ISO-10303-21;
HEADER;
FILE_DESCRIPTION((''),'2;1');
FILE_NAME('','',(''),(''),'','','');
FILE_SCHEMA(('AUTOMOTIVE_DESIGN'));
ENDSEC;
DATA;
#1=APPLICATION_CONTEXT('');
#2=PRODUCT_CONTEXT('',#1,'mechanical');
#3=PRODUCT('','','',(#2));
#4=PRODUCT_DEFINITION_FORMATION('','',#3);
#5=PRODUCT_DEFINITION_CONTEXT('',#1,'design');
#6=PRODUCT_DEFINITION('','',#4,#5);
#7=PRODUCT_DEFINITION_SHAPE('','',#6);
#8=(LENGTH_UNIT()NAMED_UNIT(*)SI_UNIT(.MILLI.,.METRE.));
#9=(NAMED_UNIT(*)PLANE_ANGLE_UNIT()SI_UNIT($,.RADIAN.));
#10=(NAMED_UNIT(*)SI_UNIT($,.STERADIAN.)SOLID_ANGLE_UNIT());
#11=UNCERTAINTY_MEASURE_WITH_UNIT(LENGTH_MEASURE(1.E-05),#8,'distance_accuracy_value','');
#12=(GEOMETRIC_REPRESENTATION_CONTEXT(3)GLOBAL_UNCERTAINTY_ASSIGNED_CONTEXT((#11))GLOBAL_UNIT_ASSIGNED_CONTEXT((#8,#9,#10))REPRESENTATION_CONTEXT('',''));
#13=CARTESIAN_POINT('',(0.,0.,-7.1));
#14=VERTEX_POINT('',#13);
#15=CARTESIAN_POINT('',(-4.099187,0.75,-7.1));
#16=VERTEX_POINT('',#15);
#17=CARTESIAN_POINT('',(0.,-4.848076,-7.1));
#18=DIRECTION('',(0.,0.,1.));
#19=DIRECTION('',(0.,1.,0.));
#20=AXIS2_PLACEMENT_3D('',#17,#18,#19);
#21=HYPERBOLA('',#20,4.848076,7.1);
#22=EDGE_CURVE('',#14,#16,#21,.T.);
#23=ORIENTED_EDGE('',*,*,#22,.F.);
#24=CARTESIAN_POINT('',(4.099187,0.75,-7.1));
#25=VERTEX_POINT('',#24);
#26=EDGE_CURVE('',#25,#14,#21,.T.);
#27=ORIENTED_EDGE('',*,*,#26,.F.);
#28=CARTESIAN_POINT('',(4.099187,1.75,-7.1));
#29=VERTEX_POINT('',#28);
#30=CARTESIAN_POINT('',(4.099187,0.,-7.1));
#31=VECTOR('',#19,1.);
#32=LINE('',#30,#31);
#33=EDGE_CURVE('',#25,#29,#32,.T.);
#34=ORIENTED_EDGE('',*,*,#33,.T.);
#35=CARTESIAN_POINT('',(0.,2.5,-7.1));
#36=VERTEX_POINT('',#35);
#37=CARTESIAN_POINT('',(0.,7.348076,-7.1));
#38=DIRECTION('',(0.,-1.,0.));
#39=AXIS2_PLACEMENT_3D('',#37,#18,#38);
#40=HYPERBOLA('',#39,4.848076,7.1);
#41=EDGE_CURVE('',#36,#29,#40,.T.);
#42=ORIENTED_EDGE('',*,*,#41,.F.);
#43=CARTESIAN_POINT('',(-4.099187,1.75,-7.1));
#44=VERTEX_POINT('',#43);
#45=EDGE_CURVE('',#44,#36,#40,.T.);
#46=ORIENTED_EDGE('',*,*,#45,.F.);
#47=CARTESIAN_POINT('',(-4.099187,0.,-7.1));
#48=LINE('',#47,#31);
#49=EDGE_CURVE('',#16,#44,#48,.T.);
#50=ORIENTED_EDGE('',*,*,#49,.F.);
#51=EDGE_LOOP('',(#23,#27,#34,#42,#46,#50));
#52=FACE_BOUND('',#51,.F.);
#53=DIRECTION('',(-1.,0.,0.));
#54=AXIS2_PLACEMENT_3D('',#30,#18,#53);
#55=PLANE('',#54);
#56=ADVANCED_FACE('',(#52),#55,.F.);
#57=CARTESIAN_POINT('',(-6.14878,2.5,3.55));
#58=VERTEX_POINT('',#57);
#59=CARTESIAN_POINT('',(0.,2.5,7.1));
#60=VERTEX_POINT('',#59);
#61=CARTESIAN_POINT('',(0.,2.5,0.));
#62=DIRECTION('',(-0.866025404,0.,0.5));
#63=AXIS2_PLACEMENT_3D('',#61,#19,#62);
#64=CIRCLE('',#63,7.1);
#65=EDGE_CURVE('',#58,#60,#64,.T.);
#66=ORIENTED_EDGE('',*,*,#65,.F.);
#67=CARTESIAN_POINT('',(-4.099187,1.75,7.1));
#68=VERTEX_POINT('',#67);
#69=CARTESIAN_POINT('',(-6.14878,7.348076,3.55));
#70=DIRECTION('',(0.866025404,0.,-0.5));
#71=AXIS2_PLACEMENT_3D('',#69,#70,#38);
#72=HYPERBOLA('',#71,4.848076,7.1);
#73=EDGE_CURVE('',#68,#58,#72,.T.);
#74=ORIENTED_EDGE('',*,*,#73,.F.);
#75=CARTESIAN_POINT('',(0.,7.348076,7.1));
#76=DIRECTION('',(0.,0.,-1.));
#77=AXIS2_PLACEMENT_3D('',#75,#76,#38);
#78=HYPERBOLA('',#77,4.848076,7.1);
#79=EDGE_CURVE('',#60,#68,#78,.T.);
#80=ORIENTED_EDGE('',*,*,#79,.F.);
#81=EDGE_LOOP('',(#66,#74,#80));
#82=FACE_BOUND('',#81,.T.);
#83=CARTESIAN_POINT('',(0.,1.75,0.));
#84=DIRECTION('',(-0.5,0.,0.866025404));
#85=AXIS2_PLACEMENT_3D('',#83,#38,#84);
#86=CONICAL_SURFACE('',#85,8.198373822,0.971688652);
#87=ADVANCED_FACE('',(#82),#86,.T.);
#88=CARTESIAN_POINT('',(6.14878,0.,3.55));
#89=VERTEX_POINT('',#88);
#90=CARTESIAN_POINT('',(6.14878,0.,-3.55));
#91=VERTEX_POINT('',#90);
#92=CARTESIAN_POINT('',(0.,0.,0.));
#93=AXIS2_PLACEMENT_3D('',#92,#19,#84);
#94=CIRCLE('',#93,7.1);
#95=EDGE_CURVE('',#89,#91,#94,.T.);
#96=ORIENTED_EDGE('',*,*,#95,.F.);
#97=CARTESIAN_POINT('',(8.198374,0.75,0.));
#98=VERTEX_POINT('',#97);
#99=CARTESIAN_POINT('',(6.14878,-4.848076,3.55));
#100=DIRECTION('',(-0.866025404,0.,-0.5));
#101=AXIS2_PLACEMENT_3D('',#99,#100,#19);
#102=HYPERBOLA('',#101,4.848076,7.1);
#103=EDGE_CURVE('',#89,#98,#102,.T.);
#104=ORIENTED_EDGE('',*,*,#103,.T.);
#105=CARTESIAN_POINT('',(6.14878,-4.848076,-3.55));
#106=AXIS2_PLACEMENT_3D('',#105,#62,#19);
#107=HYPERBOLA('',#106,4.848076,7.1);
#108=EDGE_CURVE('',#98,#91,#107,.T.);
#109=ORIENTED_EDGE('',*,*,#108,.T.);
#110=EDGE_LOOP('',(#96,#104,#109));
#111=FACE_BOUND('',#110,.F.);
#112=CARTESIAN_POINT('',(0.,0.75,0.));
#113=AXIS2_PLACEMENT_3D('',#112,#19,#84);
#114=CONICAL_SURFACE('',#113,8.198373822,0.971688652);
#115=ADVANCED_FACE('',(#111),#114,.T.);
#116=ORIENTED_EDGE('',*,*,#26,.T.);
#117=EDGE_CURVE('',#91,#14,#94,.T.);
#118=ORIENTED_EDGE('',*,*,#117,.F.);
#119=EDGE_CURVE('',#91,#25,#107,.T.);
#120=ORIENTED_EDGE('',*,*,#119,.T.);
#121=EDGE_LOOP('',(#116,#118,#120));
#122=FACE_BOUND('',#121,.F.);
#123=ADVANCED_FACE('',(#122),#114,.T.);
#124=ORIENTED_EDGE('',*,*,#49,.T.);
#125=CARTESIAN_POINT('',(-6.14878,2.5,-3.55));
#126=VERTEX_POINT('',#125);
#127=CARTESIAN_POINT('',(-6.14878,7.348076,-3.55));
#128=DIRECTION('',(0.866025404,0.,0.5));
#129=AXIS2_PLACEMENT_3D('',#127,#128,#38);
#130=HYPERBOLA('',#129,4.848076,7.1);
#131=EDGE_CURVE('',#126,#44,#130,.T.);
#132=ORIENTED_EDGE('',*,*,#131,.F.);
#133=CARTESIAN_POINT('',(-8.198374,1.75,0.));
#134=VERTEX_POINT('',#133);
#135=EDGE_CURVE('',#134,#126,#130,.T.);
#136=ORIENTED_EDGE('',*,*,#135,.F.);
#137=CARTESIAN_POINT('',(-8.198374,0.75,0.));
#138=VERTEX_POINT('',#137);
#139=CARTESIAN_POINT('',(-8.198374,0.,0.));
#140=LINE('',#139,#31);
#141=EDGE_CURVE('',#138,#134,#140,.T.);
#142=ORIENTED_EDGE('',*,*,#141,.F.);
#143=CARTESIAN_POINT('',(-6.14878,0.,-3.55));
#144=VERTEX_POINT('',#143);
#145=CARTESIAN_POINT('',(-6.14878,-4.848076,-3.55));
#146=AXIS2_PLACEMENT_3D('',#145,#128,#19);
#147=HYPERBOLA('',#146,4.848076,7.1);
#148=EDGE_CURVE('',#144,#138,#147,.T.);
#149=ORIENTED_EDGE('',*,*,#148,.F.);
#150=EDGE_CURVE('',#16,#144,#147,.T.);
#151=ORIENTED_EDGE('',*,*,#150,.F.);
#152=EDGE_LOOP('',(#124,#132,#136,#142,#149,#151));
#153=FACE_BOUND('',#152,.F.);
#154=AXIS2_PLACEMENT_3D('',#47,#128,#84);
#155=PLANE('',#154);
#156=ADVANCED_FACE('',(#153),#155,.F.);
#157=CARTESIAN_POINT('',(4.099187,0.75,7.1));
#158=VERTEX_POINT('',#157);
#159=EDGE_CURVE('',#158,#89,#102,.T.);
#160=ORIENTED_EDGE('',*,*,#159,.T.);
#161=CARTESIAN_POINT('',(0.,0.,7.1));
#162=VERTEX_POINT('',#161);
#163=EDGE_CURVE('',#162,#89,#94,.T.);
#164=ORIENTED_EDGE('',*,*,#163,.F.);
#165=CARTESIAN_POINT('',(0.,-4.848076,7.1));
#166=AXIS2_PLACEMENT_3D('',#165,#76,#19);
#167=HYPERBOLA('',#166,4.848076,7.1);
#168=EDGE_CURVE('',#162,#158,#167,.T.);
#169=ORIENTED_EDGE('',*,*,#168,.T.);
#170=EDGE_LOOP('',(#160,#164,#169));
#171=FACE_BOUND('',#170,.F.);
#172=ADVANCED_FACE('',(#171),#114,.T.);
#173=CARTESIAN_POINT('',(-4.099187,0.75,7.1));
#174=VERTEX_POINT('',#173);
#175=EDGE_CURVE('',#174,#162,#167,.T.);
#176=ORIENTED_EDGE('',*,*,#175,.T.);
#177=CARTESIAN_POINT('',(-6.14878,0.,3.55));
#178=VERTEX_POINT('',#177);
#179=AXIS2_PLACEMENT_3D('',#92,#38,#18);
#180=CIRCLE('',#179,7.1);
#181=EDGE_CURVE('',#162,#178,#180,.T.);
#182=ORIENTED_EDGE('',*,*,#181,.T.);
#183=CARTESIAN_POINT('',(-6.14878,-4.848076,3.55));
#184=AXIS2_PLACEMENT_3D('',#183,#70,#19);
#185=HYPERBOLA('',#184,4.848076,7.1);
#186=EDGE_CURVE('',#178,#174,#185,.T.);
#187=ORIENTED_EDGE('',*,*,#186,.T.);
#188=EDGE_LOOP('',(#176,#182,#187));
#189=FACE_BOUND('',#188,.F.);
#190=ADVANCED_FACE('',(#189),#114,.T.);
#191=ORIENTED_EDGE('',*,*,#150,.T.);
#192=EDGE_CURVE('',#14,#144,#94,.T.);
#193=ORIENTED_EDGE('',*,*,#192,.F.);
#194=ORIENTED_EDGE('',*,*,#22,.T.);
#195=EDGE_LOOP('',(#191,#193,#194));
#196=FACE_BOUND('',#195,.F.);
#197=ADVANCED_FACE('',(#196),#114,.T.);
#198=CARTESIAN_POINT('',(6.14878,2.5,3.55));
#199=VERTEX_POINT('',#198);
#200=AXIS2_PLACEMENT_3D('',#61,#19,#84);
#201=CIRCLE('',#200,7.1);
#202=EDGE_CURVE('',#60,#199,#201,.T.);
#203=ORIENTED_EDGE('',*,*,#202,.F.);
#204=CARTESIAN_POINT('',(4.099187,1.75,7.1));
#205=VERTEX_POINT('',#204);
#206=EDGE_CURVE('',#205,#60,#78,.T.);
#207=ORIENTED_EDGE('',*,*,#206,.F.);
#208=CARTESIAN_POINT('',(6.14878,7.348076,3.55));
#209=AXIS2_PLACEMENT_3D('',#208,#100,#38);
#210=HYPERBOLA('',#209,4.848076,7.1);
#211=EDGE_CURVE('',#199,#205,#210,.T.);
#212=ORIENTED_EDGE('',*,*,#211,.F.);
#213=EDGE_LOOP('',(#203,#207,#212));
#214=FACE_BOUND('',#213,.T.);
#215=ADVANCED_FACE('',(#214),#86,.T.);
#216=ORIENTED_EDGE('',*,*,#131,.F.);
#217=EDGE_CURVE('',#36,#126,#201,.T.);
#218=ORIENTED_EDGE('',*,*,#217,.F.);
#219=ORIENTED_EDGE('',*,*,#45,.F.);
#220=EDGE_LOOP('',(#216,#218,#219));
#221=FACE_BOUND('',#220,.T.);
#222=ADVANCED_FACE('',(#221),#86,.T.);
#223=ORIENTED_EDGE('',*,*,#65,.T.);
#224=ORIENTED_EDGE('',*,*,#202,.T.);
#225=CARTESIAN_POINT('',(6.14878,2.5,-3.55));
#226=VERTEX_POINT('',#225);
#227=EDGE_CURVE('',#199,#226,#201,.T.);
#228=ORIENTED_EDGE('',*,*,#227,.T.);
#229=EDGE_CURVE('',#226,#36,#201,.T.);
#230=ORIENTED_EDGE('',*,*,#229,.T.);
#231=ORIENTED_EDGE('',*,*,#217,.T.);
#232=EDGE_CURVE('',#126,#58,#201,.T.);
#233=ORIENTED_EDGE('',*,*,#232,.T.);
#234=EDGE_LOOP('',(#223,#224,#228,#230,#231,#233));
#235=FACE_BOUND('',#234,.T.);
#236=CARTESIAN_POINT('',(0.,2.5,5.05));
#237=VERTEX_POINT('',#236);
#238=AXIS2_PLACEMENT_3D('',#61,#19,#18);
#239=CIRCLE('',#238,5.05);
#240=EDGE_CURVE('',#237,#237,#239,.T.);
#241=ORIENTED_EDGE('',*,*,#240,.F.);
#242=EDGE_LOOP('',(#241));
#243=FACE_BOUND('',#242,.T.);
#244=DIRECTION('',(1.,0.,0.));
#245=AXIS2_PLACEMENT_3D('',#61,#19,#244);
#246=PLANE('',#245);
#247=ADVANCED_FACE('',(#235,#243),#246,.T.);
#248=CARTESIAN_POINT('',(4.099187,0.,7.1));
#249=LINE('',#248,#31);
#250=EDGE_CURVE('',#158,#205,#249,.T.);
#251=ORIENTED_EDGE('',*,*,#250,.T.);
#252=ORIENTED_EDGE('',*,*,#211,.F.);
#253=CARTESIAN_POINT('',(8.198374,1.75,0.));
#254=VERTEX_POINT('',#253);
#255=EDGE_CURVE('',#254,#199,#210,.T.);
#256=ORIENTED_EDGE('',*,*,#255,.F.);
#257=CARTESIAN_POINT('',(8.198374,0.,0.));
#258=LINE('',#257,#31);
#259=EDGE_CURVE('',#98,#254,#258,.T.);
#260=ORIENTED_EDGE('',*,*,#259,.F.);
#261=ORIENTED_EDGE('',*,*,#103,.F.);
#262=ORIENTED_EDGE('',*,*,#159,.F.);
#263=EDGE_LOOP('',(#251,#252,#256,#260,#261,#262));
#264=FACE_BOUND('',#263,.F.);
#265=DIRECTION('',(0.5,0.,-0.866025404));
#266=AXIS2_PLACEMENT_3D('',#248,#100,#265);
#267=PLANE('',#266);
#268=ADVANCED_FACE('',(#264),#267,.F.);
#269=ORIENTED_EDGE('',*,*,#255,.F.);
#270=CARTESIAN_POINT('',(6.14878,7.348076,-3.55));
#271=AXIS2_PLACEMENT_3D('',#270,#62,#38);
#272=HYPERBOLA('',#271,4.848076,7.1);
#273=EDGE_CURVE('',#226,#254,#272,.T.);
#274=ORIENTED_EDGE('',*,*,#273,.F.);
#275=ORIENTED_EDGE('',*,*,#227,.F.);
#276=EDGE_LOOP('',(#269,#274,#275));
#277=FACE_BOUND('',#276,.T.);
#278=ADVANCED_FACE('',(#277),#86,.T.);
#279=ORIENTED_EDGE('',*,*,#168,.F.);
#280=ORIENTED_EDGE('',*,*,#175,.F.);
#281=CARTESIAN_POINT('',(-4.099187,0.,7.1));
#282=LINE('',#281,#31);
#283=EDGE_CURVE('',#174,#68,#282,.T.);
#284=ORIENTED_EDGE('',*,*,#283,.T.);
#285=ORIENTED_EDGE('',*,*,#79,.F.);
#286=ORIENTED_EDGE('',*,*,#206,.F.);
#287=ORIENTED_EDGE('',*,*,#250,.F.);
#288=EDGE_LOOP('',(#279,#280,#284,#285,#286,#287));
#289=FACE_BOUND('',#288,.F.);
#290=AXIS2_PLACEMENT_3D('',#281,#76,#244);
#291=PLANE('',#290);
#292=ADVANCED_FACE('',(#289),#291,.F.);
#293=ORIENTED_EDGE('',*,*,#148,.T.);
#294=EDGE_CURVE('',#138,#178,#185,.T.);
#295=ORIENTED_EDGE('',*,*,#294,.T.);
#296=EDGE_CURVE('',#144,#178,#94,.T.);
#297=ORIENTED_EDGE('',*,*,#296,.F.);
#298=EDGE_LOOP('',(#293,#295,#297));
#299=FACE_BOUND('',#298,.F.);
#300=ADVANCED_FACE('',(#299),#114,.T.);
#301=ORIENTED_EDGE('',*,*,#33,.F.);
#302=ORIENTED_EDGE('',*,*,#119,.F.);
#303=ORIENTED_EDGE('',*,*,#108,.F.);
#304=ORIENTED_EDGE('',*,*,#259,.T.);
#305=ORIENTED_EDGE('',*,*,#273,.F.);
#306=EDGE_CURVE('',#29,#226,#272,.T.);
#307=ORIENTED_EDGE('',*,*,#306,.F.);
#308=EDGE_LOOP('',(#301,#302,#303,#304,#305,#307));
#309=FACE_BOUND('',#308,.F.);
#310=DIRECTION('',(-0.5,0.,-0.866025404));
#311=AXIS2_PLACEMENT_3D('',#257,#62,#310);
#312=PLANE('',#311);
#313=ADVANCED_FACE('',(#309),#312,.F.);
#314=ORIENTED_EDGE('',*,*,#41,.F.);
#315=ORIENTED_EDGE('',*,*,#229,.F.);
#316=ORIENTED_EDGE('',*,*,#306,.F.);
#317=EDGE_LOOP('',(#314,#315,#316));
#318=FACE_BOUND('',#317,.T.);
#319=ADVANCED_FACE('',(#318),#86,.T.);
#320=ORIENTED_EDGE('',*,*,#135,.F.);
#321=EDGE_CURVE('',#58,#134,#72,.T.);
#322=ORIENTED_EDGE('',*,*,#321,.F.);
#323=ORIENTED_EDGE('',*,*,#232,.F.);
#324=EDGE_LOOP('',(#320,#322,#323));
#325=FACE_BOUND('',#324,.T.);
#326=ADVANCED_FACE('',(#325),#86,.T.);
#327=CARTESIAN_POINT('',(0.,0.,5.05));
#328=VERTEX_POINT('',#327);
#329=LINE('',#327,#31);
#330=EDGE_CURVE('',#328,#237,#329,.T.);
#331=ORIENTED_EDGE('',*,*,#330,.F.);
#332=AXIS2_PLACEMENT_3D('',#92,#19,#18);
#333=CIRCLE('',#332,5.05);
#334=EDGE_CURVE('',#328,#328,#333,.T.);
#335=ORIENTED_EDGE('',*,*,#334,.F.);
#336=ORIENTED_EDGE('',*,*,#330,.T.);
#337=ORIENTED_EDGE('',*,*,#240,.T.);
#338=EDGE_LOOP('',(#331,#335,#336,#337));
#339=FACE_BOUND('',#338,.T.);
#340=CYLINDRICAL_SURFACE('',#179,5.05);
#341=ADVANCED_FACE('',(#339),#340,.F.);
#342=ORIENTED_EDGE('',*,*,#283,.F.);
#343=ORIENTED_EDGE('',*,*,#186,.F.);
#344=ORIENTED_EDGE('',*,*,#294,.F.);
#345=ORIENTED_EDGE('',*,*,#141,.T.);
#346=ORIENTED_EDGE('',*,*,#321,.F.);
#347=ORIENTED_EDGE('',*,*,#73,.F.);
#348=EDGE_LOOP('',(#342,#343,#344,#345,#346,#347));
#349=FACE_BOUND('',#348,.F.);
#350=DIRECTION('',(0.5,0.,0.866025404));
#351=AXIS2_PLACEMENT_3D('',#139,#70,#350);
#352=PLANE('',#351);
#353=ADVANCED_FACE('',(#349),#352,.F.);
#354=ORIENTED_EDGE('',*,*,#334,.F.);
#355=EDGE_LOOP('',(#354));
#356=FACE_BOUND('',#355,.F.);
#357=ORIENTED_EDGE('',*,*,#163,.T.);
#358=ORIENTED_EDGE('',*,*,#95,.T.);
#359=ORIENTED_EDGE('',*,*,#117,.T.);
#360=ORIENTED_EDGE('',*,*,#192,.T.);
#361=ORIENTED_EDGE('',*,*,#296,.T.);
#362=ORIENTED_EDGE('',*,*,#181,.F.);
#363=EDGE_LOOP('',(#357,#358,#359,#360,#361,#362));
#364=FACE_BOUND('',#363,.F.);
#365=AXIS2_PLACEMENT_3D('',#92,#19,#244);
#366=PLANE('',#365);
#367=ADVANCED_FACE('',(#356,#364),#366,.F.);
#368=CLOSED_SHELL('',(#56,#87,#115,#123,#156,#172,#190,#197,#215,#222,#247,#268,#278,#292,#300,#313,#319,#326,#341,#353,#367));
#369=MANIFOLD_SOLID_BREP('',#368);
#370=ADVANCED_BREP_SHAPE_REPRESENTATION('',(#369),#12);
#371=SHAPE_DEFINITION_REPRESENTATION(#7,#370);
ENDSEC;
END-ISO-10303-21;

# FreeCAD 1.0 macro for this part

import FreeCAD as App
import Part
import Sketcher

V = App.Vector
Q = App.Units.Quantity

doc = App.newDocument("Part")
body = doc.addObject("PartDesign::Body", "Body")

# Sketch on XZ plane
sketch1 = body.newObject("Sketcher::SketchObject", "Sketch")
sketch1.AttachmentSupport = (doc.getObject("XZ_Plane"), [""])
sketch1.MapMode = "FlatFace"
sketch1.addGeometry(Part.LineSegment(V(8, 0, 0), V(4, -7, 0)), False)
sketch1.addGeometry(Part.LineSegment(V(4, -7, 0), V(-4, -7, 0)), False)
sketch1.addGeometry(Part.LineSegment(V(-4, -7, 0), V(-8, 0, 0)), False)
sketch1.addGeometry(Part.LineSegment(V(-8, 0, 0), V(-4, 7, 0)), False)
sketch1.addGeometry(Part.LineSegment(V(-4, 7, 0), V(4, 7, 0)), False)
sketch1.addGeometry(Part.LineSegment(V(4, 7, 0), V(8, 0, 0)), False)
sketch1.addGeometry(Part.Circle(V(0, 0, 0), V(0, 0, 1), 5), False)
sketch1.addConstraint(Sketcher.Constraint("Coincident", 0, 2, 1, 1))
sketch1.addConstraint(Sketcher.Constraint("Coincident", 1, 2, 2, 1))
sketch1.addConstraint(Sketcher.Constraint("Coincident", 2, 2, 3, 1))
sketch1.addConstraint(Sketcher.Constraint("Coincident", 3, 2, 4, 1))
sketch1.addConstraint(Sketcher.Constraint("Coincident", 4, 2, 5, 1))
sketch1.addConstraint(Sketcher.Constraint("Coincident", 5, 2, 0, 1))
sketch1.addConstraint(Sketcher.Constraint("Horizontal", 1))
sketch1.addConstraint(Sketcher.Constraint("Horizontal", 4))
sketch1.addConstraint(Sketcher.Constraint("Coincident", 6, 3, -1, 1))
sketch1.addConstraint(Sketcher.Constraint("Symmetric", 0, 2, 3, 2, -1, 1))
sketch1.addConstraint(Sketcher.Constraint("Symmetric", 2, 2, 5, 2, -1, 1))
sketch1.addConstraint(Sketcher.Constraint("PointOnObject", 2, 2, -1))
sketch1.addConstraint(Sketcher.Constraint("Parallel", 2, 5))
sketch1.addConstraint(Sketcher.Constraint("Vertical", 1, 2, 3, 2))
sketch1.addConstraint(Sketcher.Constraint("Diameter", 6, Q("10.1 mm")))
sketch1.addConstraint(Sketcher.Constraint("Angle", 0, Q("-120 deg")))
sketch1.addConstraint(Sketcher.Constraint("DistanceY", 0, 2, -1, 1, Q("7.1 mm")))
sketch1.addConstraint(Sketcher.Constraint("DistanceX", 1, 2, 1, 1, Q("8.198374 mm")))
pad1 = body.newObject("PartDesign::Pad", "Pad")
pad1.Profile = sketch1
pad1.Length = 2.5
pad1.Reversed = True

# Sketch on an angled plane
sketch2 = body.newObject("Sketcher::SketchObject", "Sketch001")
sketch2.Placement = App.Placement(V(0, 0, 0), App.Rotation(V(0.5, 0, -0.866025404), V(0, 1, 0), V(0.866025404, 0, 0.5), "ZXY"))
sketch2.addGeometry(Part.LineSegment(V(-7.1, 0, 0), V(-8.2, 0.8, 0)), False)
sketch2.addGeometry(Part.LineSegment(V(-8.2, 0.8, 0), V(-8.2, 0, 0)), False)
sketch2.addGeometry(Part.LineSegment(V(-8.2, 0, 0), V(-7.1, 0, 0)), False)
sketch2.addConstraint(Sketcher.Constraint("Coincident", 0, 2, 1, 1))
sketch2.addConstraint(Sketcher.Constraint("Coincident", 1, 2, 2, 1))
sketch2.addConstraint(Sketcher.Constraint("Coincident", 2, 2, 0, 1))
sketch2.addConstraint(Sketcher.Constraint("Vertical", 1))
sketch2.addConstraint(Sketcher.Constraint("Horizontal", 2))
sketch2.addConstraint(Sketcher.Constraint("PointOnObject", 1, 2, -1))
sketch2.addConstraint(Sketcher.Constraint("DistanceY", 1, 2, 1, 1, Q("0.75 mm")))
sketch2.addConstraint(Sketcher.Constraint("DistanceX", 2, 2, -1, 1, Q("7.1 mm")))
sketch2.addConstraint(Sketcher.Constraint("Distance", 0, Q("1.330009 mm")))
groove = body.newObject("PartDesign::Groove", "Groove")
groove.Profile = sketch2
groove.ReferenceAxis = (sketch2, ["V_Axis"])
groove.Angle = 360
doc.recompute()

datumplane = body.newObject("PartDesign::Plane", "DatumPlane")
datumplane.AttachmentSupport = (doc.getObject("XZ_Plane"), [""])
datumplane.MapMode = "FlatFace"
datumplane.AttachmentOffset = App.Placement(V(0, 0, -1.25), App.Rotation())
mirrored = body.newObject("PartDesign::Mirrored", "Mirrored")
mirrored.Originals = [groove]
mirrored.MirrorPlane = (datumplane, [""])
body.Tip = mirrored

doc.recompute()
